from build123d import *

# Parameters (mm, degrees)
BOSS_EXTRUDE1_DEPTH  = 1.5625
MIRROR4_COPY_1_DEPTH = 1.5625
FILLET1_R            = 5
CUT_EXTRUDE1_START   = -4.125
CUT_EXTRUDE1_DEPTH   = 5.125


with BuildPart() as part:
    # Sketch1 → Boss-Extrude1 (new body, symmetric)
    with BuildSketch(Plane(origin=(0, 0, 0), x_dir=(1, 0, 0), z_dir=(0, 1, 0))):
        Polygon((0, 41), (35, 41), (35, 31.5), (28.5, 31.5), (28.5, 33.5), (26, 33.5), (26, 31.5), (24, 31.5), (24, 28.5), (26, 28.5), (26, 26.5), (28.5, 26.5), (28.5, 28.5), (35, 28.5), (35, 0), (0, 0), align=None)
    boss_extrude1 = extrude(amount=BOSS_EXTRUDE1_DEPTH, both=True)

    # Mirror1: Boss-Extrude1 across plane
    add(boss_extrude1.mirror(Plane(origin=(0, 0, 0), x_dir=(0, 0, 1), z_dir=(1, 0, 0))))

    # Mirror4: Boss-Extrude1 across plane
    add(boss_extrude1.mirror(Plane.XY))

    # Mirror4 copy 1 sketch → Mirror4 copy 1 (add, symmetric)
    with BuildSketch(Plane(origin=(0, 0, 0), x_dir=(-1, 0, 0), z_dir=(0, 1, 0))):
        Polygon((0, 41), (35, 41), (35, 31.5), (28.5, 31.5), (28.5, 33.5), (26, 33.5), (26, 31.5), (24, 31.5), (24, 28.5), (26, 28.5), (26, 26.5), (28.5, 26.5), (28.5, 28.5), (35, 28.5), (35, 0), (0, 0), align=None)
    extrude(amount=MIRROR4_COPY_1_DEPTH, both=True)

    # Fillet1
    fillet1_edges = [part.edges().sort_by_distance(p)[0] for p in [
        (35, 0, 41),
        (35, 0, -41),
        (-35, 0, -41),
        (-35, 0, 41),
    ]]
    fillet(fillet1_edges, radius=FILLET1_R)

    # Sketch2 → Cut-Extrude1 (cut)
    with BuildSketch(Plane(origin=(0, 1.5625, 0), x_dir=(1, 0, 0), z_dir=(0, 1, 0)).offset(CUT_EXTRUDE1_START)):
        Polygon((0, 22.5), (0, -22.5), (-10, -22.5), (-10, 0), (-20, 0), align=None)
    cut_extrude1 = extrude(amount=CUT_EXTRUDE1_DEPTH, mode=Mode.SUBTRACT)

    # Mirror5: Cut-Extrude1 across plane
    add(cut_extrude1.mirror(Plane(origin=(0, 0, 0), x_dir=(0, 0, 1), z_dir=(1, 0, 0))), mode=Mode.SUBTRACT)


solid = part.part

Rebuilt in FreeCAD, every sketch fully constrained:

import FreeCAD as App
import Part
import Sketcher

V = App.Vector


def edges_at(feature, points):
    """Names of the edges that pass closest to the given points."""
    edges = feature.Shape.Edges
    near = lambda p: min(range(len(edges)), key=lambda i: edges[i].distToShape(Part.Vertex(*p))[0])
    return sorted({f"Edge{near(p) + 1}" for p in points})


def add_polygon(sketch, points):
    """Adds a closed chain of lines whose ends are joined by coincident constraints."""
    first, n = sketch.GeometryCount, len(points)
    for a, b in zip(points, points[1:] + points[:1]):
        sketch.addGeometry(Part.LineSegment(App.Vector(*a, 0), App.Vector(*b, 0)), False)
    for i in range(n):
        sketch.addConstraint(Sketcher.Constraint("Coincident", first + i, 2, first + (i + 1) % n, 1))

doc = App.newDocument("Part")
body = doc.addObject("PartDesign::Body", "Body")

# Sketch on XZ plane
sketch1 = doc.addObject("Sketcher::SketchObject", "Sketch")
body.addObject(sketch1)
sketch1.AttachmentSupport = (doc.XZ_Plane, [""])
sketch1.MapMode = "FlatFace"
add_polygon(sketch1, [(35, -41), (0, -41), (0, 0), (35, 0), (35, -28.5), (28.5, -28.5), (28.5, -26.5), (26, -26.5), (26, -28.5), (24, -28.5), (24, -31.5), (26, -31.5), (26, -33.5), (28.5, -33.5), (28.5, -31.5), (35, -31.5)])  # lines 0-15
sketch1.addConstraint(Sketcher.Constraint("Horizontal", 0))
sketch1.addConstraint(Sketcher.Constraint("Vertical", 1))
sketch1.addConstraint(Sketcher.Constraint("Horizontal", 2))
sketch1.addConstraint(Sketcher.Constraint("Vertical", 3))
sketch1.addConstraint(Sketcher.Constraint("Horizontal", 4))
sketch1.addConstraint(Sketcher.Constraint("Vertical", 5))
sketch1.addConstraint(Sketcher.Constraint("Horizontal", 6))
sketch1.addConstraint(Sketcher.Constraint("Vertical", 7))
sketch1.addConstraint(Sketcher.Constraint("Horizontal", 8))
sketch1.addConstraint(Sketcher.Constraint("Vertical", 9))
sketch1.addConstraint(Sketcher.Constraint("Horizontal", 10))
sketch1.addConstraint(Sketcher.Constraint("Vertical", 11))
sketch1.addConstraint(Sketcher.Constraint("Horizontal", 12))
sketch1.addConstraint(Sketcher.Constraint("Vertical", 13))
sketch1.addConstraint(Sketcher.Constraint("Horizontal", 14))
sketch1.addConstraint(Sketcher.Constraint("Vertical", 15))
sketch1.addConstraint(Sketcher.Constraint("Coincident", 1, 2, -1, 1))
sketch1.addConstraint(Sketcher.Constraint("Horizontal", 4, 2, 7, 2))
sketch1.addConstraint(Sketcher.Constraint("Horizontal", 10, 2, 13, 2))
sketch1.addConstraint(Sketcher.Constraint("Vertical", 7, 2, 10, 2))
sketch1.addConstraint(Sketcher.Constraint("Vertical", 5, 2, 12, 2))
sketch1.addConstraint(Sketcher.Constraint("Vertical", 3, 2, 14, 2))
sketch1.addConstraint(Sketcher.Constraint("Equal", 10, 5))
sketch1.addConstraint(Sketcher.Constraint("Equal", 7, 11))
sketch1.addConstraint(Sketcher.Constraint("DistanceX", 0, 2, 0, 1, 35.0))
sketch1.addConstraint(Sketcher.Constraint("DistanceX", 8, 2, 8, 1, 2.0))
sketch1.addConstraint(Sketcher.Constraint("DistanceY", 1, 1, 1, 2, 41.0))
sketch1.addConstraint(Sketcher.Constraint("DistanceY", 9, 2, 9, 1, 3.0))
sketch1.addConstraint(Sketcher.Constraint("DistanceX", 4, 2, 4, 1, 6.5))
sketch1.addConstraint(Sketcher.Constraint("DistanceX", 6, 2, 6, 1, 2.5))
sketch1.addConstraint(Sketcher.Constraint("DistanceY", 3, 2, 3, 1, 28.5))
pad1 = doc.addObject("PartDesign::Pad", "Pad")
body.addObject(pad1)
pad1.Profile = sketch1
pad1.Length = 3.125
pad1.Midplane = True
doc.recompute()

mirrored = doc.addObject("PartDesign::Mirrored", "Mirrored")
body.addObject(mirrored)
mirrored.Originals = [pad1]
mirrored.MirrorPlane = (doc.YZ_Plane, [""])
body.Tip = mirrored
doc.recompute()

mirrored2 = doc.addObject("PartDesign::Mirrored", "Mirrored001")
body.addObject(mirrored2)
mirrored2.Originals = [pad1]
mirrored2.MirrorPlane = (doc.XY_Plane, [""])
body.Tip = mirrored2

# Sketch on XZ plane
sketch2 = doc.addObject("Sketcher::SketchObject", "Sketch001")
body.addObject(sketch2)
sketch2.AttachmentSupport = (doc.XZ_Plane, [""])
sketch2.MapMode = "FlatFace"
add_polygon(sketch2, [(-35, 41), (0, 41), (0, 0), (-35, 0), (-35, 28.5), (-28.5, 28.5), (-28.5, 26.5), (-26, 26.5), (-26, 28.5), (-24, 28.5), (-24, 31.5), (-26, 31.5), (-26, 33.5), (-28.5, 33.5), (-28.5, 31.5), (-35, 31.5)])  # lines 0-15
sketch2.addConstraint(Sketcher.Constraint("Horizontal", 0))
sketch2.addConstraint(Sketcher.Constraint("Vertical", 1))
sketch2.addConstraint(Sketcher.Constraint("Horizontal", 2))
sketch2.addConstraint(Sketcher.Constraint("Vertical", 3))
sketch2.addConstraint(Sketcher.Constraint("Horizontal", 4))
sketch2.addConstraint(Sketcher.Constraint("Vertical", 5))
sketch2.addConstraint(Sketcher.Constraint("Horizontal", 6))
sketch2.addConstraint(Sketcher.Constraint("Vertical", 7))
sketch2.addConstraint(Sketcher.Constraint("Horizontal", 8))
sketch2.addConstraint(Sketcher.Constraint("Vertical", 9))
sketch2.addConstraint(Sketcher.Constraint("Horizontal", 10))
sketch2.addConstraint(Sketcher.Constraint("Vertical", 11))
sketch2.addConstraint(Sketcher.Constraint("Horizontal", 12))
sketch2.addConstraint(Sketcher.Constraint("Vertical", 13))
sketch2.addConstraint(Sketcher.Constraint("Horizontal", 14))
sketch2.addConstraint(Sketcher.Constraint("Vertical", 15))
sketch2.addConstraint(Sketcher.Constraint("Coincident", 1, 2, -1, 1))
sketch2.addConstraint(Sketcher.Constraint("Horizontal", 4, 2, 7, 2))
sketch2.addConstraint(Sketcher.Constraint("Horizontal", 10, 2, 13, 2))
sketch2.addConstraint(Sketcher.Constraint("Vertical", 7, 2, 10, 2))
sketch2.addConstraint(Sketcher.Constraint("Vertical", 5, 2, 12, 2))
sketch2.addConstraint(Sketcher.Constraint("Vertical", 3, 2, 14, 2))
sketch2.addConstraint(Sketcher.Constraint("Equal", 10, 5))
sketch2.addConstraint(Sketcher.Constraint("Equal", 7, 11))
sketch2.addConstraint(Sketcher.Constraint("DistanceX", 0, 1, 0, 2, 35.0))
sketch2.addConstraint(Sketcher.Constraint("DistanceX", 8, 1, 8, 2, 2.0))
sketch2.addConstraint(Sketcher.Constraint("DistanceY", 1, 2, 1, 1, 41.0))
sketch2.addConstraint(Sketcher.Constraint("DistanceY", 9, 1, 9, 2, 3.0))
sketch2.addConstraint(Sketcher.Constraint("DistanceX", 4, 1, 4, 2, 6.5))
sketch2.addConstraint(Sketcher.Constraint("DistanceX", 6, 1, 6, 2, 2.5))
sketch2.addConstraint(Sketcher.Constraint("DistanceY", 3, 1, 3, 2, 28.5))
pad2 = doc.addObject("PartDesign::Pad", "Pad001")
body.addObject(pad2)
pad2.Profile = sketch2
pad2.Length = 3.125
pad2.Midplane = True
doc.recompute()

fillet = doc.addObject("PartDesign::Fillet", "Fillet")
body.addObject(fillet)
fillet.Base = (pad2, edges_at(pad2, [
    (35, 0, 41),
    (35, 0, -41),
    (-35, 0, -41),
    (-35, 0, 41),
]))
fillet.Radius = 5

# Sketch on XZ plane
sketch3 = doc.addObject("Sketcher::SketchObject", "Sketch002")
body.addObject(sketch3)
sketch3.AttachmentSupport = (doc.XZ_Plane, [""])
sketch3.MapMode = "FlatFace"
sketch3.AttachmentOffset = App.Placement(V(0, 0, 2.5625), App.Rotation())
add_polygon(sketch3, [(0, 22), (0, -22), (-20, 0), (-10, 0), (-10, 22)])  # lines 0-4
sketch3.addConstraint(Sketcher.Constraint("Vertical", 0))
sketch3.addConstraint(Sketcher.Constraint("Horizontal", 2))
sketch3.addConstraint(Sketcher.Constraint("Vertical", 3))
sketch3.addConstraint(Sketcher.Constraint("Horizontal", 4))
sketch3.addConstraint(Sketcher.Constraint("Symmetric", 0, 2, 4, 2, -1, 1))
sketch3.addConstraint(Sketcher.Constraint("PointOnObject", 1, 2, -1))
sketch3.addConstraint(Sketcher.Constraint("Equal", 2, 4))
sketch3.addConstraint(Sketcher.Constraint("DistanceX", 2, 1, 2, 2, 10.0))
sketch3.addConstraint(Sketcher.Constraint("DistanceY", 0, 2, 0, 1, 45.0))
pocket1 = doc.addObject("PartDesign::Pocket", "Pocket")
body.addObject(pocket1)
pocket1.Profile = sketch3
pocket1.Length = 5.125
doc.recompute()

mirrored3 = doc.addObject("PartDesign::Mirrored", "Mirrored002")
body.addObject(mirrored3)
mirrored3.Originals = [pocket1]
mirrored3.MirrorPlane = (doc.YZ_Plane, [""])
body.Tip = mirrored3

doc.recompute()
